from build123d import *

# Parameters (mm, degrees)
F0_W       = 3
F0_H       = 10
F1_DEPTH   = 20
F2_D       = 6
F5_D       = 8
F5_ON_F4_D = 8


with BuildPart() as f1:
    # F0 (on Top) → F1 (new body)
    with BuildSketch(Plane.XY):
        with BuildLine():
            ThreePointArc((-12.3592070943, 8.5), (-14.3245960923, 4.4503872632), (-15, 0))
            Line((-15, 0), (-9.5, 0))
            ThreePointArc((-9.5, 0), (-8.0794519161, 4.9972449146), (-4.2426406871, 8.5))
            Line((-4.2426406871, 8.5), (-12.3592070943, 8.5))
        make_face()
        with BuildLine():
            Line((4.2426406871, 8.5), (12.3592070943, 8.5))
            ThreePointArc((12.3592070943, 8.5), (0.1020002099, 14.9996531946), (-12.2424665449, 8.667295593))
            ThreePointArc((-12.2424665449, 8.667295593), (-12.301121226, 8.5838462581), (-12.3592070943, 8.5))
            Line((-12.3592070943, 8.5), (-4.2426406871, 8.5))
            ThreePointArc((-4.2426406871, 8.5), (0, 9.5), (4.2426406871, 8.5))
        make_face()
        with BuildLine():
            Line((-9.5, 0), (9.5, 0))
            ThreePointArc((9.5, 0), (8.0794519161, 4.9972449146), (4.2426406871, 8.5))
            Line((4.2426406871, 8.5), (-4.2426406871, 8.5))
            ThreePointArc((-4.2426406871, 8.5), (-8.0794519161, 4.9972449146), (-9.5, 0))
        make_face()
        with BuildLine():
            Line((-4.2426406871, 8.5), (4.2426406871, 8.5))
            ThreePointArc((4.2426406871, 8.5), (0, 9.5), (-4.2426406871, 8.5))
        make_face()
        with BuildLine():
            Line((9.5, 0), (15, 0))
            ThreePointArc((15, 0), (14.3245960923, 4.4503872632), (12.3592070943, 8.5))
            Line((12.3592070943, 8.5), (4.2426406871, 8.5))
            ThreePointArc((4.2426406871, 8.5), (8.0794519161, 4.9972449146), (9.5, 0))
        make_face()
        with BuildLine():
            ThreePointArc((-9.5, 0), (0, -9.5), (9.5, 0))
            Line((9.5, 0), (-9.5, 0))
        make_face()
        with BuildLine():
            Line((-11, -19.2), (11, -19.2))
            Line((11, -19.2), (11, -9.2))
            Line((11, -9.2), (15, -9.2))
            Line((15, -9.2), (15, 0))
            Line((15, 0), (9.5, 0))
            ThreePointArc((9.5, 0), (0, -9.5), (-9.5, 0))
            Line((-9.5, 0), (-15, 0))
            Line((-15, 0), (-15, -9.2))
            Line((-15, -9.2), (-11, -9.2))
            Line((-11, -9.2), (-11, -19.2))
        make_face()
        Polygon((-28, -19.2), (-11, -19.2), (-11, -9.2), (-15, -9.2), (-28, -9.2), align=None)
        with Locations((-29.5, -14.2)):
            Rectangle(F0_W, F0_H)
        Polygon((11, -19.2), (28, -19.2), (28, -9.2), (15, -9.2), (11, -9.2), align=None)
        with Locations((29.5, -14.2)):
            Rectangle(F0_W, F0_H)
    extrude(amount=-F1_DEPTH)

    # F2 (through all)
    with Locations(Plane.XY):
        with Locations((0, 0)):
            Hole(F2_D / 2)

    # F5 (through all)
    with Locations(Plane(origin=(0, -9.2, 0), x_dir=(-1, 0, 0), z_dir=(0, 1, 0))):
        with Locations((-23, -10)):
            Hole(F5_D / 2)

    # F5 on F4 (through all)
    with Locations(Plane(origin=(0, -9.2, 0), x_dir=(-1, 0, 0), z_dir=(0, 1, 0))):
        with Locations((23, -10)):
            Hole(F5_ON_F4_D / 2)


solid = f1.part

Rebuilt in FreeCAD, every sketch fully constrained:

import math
import FreeCAD as App
import Part
import Sketcher

V = App.Vector

doc = App.newDocument("Part")
body = doc.addObject("PartDesign::Body", "Body")

# Sketch on XY plane
sketch1 = body.newObject("Sketcher::SketchObject", "Sketch")
sketch1.AttachmentSupport = (doc.getObject("XY_Plane"), [""])
sketch1.MapMode = "FlatFace"
sketch1.addGeometry(Part.ArcOfCircle(Part.Circle(V(0, 0, 0), V(0, 0, 1), 15), math.radians(35), math.radians(145)), False)
sketch1.addGeometry(Part.ArcOfCircle(Part.Circle(V(0, 0, 0), V(0, 0, 1), 15), math.radians(144.7), math.radians(145.48)), False)
sketch1.addGeometry(Part.ArcOfCircle(Part.Circle(V(0, 0, 0), V(0, 0, 1), 15), math.radians(145), math.radians(180)), False)
sketch1.addGeometry(Part.LineSegment(V(-15, 0, 0), V(-15, -9.2, 0)), False)
sketch1.addGeometry(Part.LineSegment(V(-15, -9.2, 0), V(-31, -9.2, 0)), False)
sketch1.addGeometry(Part.LineSegment(V(-31, -9.2, 0), V(-31, -19.2, 0)), False)
sketch1.addGeometry(Part.LineSegment(V(-31, -19.2, 0), V(31, -19.2, 0)), False)
sketch1.addGeometry(Part.LineSegment(V(31, -19.2, 0), V(31, -9.2, 0)), False)
sketch1.addGeometry(Part.LineSegment(V(31, -9.2, 0), V(15, -9.2, 0)), False)
sketch1.addGeometry(Part.LineSegment(V(15, -9.2, 0), V(15, 0, 0)), False)
sketch1.addGeometry(Part.ArcOfCircle(Part.Circle(V(0, 0, 0), V(0, 0, 1), 15), math.radians(0), math.radians(35)), False)
sketch1.addConstraint(Sketcher.Constraint("Tangent", 0, 2, 1, 1))
sketch1.addConstraint(Sketcher.Constraint("Tangent", 1, 2, 2, 1))
sketch1.addConstraint(Sketcher.Constraint("Tangent", 2, 2, 3, 1))
sketch1.addConstraint(Sketcher.Constraint("Coincident", 3, 2, 4, 1))
sketch1.addConstraint(Sketcher.Constraint("Coincident", 4, 2, 5, 1))
sketch1.addConstraint(Sketcher.Constraint("Coincident", 5, 2, 6, 1))
sketch1.addConstraint(Sketcher.Constraint("Coincident", 6, 2, 7, 1))
sketch1.addConstraint(Sketcher.Constraint("Coincident", 7, 2, 8, 1))
sketch1.addConstraint(Sketcher.Constraint("Coincident", 8, 2, 9, 1))
sketch1.addConstraint(Sketcher.Constraint("Tangent", 9, 2, 10, 1))
sketch1.addConstraint(Sketcher.Constraint("Tangent", 10, 2, 0, 1))
sketch1.addConstraint(Sketcher.Constraint("Vertical", 3))
sketch1.addConstraint(Sketcher.Constraint("Horizontal", 4))
sketch1.addConstraint(Sketcher.Constraint("Vertical", 5))
sketch1.addConstraint(Sketcher.Constraint("Horizontal", 6))
sketch1.addConstraint(Sketcher.Constraint("Vertical", 7))
sketch1.addConstraint(Sketcher.Constraint("Horizontal", 8))
sketch1.addConstraint(Sketcher.Constraint("Vertical", 9))
sketch1.addConstraint(Sketcher.Constraint("Coincident", 0, 3, -1, 1))
sketch1.addConstraint(Sketcher.Constraint("Coincident", 2, 3, -1, 1))
sketch1.addConstraint(Sketcher.Constraint("Equal", 2, 10))
sketch1.addConstraint(Sketcher.Constraint("Symmetric", 4, 2, 7, 2, -2))
sketch1.addConstraint(Sketcher.Constraint("Horizontal", 1, 2, 10, 2))
sketch1.addConstraint(Sketcher.Constraint("Radius", 0, 15.0))
sketch1.addConstraint(Sketcher.Constraint("DistanceX", 4, 2, 4, 1, 16.0))
sketch1.addConstraint(Sketcher.Constraint("DistanceY", 5, 2, 5, 1, 10.0))
sketch1.addConstraint(Sketcher.Constraint("DistanceY", 3, 2, 3, 1, 9.2))
sketch1.addConstraint(Sketcher.Constraint("DistanceY", -1, 1, 1, 2, 8.5))
sketch1.addConstraint(Sketcher.Constraint("DistanceX", 1, 2, 0, 2, 0.116741))
pad1 = body.newObject("PartDesign::Pad", "Pad")
pad1.Profile = sketch1
pad1.Length = 20
pad1.Reversed = True

# Sketch on XY plane
sketch2 = body.newObject("Sketcher::SketchObject", "Sketch001")
sketch2.AttachmentSupport = (doc.getObject("XY_Plane"), [""])
sketch2.MapMode = "FlatFace"
sketch2.addGeometry(Part.Circle(V(0, 0, 0), V(0, 0, 1), 3), False)
sketch2.addConstraint(Sketcher.Constraint("Coincident", 0, 3, -1, 1))
sketch2.addConstraint(Sketcher.Constraint("Diameter", 0, 6.0))
doc.recompute()
hole = body.newObject("PartDesign::Hole", "Hole")
hole.Profile = sketch2
hole.ThreadType = "None"
hole.Diameter = 6
hole.DepthType = "ThroughAll"

# Sketch on XZ plane
sketch3 = body.newObject("Sketcher::SketchObject", "Sketch002")
sketch3.AttachmentSupport = (doc.getObject("XZ_Plane"), [""])
sketch3.MapMode = "FlatFace"
sketch3.AttachmentOffset = App.Placement(V(0, 0, 9.2), App.Rotation())
sketch3.addGeometry(Part.Circle(V(23, -10, 0), V(0, 0, 1), 4), False)
sketch3.addConstraint(Sketcher.Constraint("Diameter", 0, 8.0))
sketch3.addConstraint(Sketcher.Constraint("DistanceX", -1, 1, 0, 3, 23.0))
sketch3.addConstraint(Sketcher.Constraint("DistanceY", 0, 3, -1, 1, 10.0))
doc.recompute()
hole2 = body.newObject("PartDesign::Hole", "Hole001")
hole2.Profile = sketch3
hole2.ThreadType = "None"
hole2.Diameter = 8
hole2.DepthType = "ThroughAll"
hole2.Reversed = True

# Sketch on XZ plane
sketch4 = body.newObject("Sketcher::SketchObject", "Sketch003")
sketch4.AttachmentSupport = (doc.getObject("XZ_Plane"), [""])
sketch4.MapMode = "FlatFace"
sketch4.AttachmentOffset = App.Placement(V(0, 0, 9.2), App.Rotation())
sketch4.addGeometry(Part.Circle(V(-23, -10, 0), V(0, 0, 1), 4), False)
sketch4.addConstraint(Sketcher.Constraint("Diameter", 0, 8.0))
sketch4.addConstraint(Sketcher.Constraint("DistanceX", 0, 3, -1, 1, 23.0))
sketch4.addConstraint(Sketcher.Constraint("DistanceY", 0, 3, -1, 1, 10.0))
doc.recompute()
hole3 = body.newObject("PartDesign::Hole", "Hole002")
hole3.Profile = sketch4
hole3.ThreadType = "None"
hole3.Diameter = 8
hole3.DepthType = "ThroughAll"
hole3.Reversed = True

doc.recompute()
